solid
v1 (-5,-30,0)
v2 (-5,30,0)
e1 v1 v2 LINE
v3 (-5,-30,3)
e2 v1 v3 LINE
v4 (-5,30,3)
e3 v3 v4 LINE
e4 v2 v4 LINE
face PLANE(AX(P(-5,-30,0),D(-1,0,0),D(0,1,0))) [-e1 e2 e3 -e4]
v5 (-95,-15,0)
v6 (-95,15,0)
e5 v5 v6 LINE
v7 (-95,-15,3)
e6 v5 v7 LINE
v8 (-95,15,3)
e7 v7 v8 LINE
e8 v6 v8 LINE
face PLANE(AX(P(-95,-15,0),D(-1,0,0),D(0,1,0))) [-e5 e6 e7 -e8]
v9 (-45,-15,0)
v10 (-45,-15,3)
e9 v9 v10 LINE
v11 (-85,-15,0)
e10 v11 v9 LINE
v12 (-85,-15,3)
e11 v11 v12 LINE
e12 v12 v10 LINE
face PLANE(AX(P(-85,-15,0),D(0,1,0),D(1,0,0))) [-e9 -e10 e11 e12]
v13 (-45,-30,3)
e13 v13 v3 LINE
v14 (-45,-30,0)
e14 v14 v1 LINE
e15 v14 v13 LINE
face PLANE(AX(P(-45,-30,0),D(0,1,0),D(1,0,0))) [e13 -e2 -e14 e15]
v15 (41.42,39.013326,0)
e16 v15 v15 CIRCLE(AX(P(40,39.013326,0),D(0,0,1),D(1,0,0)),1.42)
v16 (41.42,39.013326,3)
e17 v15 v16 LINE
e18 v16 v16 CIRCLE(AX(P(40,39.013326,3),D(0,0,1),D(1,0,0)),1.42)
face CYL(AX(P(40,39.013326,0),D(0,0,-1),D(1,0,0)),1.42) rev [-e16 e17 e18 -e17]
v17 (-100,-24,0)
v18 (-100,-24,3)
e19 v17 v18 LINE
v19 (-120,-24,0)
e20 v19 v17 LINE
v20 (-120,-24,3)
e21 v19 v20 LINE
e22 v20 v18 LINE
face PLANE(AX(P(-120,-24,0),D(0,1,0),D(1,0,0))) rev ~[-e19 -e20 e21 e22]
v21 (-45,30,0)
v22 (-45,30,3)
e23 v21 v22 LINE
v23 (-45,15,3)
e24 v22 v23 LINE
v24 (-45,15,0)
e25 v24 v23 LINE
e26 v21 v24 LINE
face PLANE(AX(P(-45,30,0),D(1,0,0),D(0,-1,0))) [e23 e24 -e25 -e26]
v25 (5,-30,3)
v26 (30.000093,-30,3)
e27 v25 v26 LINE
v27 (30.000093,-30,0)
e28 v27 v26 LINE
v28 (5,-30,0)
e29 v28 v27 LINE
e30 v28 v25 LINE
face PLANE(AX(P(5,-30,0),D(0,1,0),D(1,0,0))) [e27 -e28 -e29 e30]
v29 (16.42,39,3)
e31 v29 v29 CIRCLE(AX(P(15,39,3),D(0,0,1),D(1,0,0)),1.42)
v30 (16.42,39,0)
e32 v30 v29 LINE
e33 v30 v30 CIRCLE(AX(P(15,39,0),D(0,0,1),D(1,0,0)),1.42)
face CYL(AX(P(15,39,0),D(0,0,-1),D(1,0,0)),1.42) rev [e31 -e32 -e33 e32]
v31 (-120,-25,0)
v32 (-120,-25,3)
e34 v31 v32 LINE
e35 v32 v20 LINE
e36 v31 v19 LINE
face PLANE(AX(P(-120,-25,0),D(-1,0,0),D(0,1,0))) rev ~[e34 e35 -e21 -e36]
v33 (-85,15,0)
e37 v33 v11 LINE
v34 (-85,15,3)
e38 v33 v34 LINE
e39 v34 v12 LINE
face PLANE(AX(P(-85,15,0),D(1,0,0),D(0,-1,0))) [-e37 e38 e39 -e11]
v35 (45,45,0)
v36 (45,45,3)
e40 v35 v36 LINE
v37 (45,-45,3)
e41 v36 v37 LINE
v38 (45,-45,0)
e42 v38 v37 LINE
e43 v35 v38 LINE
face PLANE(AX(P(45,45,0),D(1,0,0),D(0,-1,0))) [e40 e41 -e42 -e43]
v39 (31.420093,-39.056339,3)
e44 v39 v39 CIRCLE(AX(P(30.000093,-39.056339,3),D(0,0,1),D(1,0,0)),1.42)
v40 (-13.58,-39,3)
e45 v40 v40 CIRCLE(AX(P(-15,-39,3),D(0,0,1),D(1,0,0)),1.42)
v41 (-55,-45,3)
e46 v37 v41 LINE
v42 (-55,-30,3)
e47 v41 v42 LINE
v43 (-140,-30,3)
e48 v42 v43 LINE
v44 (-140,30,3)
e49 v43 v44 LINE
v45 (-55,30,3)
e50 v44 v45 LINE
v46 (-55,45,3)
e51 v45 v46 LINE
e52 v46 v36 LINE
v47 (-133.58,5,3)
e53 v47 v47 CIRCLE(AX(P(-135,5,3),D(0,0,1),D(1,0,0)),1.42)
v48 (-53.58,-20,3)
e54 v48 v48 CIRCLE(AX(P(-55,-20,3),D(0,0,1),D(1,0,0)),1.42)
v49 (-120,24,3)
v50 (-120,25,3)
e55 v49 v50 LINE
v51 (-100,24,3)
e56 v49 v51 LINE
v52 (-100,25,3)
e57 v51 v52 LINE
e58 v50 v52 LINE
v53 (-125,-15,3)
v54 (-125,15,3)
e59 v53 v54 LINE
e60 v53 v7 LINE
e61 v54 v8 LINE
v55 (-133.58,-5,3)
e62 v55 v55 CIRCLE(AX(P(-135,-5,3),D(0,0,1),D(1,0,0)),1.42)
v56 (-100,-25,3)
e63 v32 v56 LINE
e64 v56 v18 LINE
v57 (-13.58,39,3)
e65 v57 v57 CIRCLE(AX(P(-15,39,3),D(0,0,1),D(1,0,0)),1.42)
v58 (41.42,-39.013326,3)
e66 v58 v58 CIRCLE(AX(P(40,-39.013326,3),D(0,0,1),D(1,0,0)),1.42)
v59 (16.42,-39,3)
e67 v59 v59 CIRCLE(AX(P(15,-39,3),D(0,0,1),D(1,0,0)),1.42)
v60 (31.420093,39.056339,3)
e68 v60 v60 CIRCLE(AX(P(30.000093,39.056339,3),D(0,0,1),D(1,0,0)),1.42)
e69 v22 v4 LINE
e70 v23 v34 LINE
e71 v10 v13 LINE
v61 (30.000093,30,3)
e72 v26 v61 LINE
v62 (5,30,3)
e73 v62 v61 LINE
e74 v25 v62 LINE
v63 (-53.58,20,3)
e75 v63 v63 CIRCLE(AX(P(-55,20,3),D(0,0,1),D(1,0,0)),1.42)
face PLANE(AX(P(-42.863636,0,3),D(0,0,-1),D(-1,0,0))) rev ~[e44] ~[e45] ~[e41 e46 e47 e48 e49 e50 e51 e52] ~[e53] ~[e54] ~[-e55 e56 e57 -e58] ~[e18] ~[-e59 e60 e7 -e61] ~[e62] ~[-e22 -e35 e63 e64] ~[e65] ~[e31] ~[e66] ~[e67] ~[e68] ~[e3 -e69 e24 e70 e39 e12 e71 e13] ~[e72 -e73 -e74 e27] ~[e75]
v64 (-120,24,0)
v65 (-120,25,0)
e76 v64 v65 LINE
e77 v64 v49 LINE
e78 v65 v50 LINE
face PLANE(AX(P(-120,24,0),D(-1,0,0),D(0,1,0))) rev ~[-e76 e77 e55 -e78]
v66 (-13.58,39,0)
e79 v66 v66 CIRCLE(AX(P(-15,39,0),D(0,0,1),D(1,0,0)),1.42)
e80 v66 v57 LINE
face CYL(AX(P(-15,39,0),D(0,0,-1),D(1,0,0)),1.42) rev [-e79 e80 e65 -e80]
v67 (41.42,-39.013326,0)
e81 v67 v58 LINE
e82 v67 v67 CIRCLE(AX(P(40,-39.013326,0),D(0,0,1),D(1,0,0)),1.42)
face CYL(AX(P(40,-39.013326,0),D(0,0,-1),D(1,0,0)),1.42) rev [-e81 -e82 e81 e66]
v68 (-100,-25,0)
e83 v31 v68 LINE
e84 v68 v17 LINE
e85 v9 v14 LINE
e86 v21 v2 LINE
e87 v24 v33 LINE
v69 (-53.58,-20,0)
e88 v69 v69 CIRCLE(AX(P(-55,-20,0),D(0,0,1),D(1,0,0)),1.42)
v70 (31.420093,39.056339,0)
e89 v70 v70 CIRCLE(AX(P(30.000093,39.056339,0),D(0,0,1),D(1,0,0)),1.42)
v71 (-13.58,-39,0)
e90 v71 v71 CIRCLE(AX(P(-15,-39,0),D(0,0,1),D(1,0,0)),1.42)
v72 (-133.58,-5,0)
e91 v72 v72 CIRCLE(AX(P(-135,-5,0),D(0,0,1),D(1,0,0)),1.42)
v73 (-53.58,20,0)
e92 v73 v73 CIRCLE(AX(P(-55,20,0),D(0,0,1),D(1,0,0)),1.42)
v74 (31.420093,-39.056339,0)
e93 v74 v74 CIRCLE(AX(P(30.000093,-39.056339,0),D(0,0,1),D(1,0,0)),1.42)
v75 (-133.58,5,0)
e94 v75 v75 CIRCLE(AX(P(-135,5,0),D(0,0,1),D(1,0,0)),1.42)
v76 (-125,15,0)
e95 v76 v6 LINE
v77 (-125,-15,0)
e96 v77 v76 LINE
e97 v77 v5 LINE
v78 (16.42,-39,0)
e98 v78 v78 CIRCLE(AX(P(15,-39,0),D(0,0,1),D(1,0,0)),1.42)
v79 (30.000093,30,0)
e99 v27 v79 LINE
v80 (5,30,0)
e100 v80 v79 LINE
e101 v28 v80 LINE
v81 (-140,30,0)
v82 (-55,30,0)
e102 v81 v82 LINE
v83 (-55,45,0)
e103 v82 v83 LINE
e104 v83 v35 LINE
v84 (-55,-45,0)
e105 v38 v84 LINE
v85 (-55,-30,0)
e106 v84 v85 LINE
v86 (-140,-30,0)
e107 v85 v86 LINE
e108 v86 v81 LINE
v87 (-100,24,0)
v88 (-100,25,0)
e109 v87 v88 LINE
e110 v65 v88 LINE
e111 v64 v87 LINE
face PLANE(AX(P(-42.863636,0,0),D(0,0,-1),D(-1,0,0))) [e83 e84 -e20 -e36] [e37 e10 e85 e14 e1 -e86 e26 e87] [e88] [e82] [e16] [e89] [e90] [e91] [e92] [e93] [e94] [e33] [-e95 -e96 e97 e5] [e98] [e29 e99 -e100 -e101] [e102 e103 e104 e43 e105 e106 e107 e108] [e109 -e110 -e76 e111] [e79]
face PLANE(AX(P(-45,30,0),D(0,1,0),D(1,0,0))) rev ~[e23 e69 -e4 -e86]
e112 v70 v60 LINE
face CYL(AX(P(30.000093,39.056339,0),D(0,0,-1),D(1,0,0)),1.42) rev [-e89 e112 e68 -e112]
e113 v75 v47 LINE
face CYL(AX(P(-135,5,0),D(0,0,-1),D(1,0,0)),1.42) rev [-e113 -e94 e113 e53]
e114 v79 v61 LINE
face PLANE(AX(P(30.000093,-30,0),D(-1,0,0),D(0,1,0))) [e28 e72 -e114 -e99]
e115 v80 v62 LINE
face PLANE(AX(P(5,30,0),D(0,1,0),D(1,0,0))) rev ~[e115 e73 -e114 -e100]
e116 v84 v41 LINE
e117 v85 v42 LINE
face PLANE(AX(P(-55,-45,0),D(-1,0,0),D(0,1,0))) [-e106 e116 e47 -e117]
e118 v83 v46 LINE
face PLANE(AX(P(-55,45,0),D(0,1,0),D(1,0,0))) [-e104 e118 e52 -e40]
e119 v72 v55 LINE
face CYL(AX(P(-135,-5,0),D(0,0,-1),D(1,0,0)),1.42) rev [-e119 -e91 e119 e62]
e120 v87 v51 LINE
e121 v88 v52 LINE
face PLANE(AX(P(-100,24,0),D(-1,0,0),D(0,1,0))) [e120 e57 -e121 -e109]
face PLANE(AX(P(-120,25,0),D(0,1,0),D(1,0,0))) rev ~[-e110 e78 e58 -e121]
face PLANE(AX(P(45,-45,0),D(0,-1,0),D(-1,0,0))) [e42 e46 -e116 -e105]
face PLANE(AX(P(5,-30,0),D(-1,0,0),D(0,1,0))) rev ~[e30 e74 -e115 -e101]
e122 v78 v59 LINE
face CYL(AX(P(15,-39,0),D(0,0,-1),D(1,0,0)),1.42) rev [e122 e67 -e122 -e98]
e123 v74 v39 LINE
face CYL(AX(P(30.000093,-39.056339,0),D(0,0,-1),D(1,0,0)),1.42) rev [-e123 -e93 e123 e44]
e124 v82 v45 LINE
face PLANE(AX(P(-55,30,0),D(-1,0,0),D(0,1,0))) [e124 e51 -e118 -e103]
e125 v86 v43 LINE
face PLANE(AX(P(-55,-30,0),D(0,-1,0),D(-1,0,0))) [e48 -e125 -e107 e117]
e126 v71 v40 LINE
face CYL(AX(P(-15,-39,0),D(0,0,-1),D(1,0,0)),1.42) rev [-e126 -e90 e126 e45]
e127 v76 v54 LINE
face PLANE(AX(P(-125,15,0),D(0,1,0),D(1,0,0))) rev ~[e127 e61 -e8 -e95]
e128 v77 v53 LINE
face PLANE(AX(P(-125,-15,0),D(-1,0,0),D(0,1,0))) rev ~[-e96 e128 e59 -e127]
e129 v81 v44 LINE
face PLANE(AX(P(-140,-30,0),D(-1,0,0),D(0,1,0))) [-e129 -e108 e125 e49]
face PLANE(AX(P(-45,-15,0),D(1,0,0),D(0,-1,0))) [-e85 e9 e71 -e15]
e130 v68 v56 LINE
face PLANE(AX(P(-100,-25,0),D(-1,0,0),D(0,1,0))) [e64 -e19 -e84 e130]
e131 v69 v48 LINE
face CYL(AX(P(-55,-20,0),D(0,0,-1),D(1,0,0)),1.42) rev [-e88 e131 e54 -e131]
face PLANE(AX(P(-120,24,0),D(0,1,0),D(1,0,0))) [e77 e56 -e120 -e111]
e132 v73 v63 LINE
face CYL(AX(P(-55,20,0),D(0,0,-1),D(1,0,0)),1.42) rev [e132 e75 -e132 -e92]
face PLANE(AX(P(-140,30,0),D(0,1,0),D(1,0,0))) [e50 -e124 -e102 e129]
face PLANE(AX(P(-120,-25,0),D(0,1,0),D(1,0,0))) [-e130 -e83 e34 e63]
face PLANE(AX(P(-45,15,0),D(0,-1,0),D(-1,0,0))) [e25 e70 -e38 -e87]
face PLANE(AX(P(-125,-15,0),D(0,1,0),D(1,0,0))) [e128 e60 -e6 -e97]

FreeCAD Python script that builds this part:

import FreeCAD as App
import Part
import Sketcher
Q = App.Units.Quantity


def add_polygon(sketch, points):
    """Adds a closed chain of lines whose ends are joined by coincident constraints."""
    first, n = sketch.GeometryCount, len(points)
    for a, b in zip(points, points[1:] + points[:1]):
        sketch.addGeometry(Part.LineSegment(App.Vector(*a, 0), App.Vector(*b, 0)), False)
    for i in range(n):
        sketch.addConstraint(Sketcher.Constraint("Coincident", first + i, 2, first + (i + 1) % n, 1))

doc = App.newDocument("Part")
body = doc.addObject("PartDesign::Body", "Body")

sketch1 = body.newObject("Sketcher::SketchObject", "Sketch")
sketch1.AttachmentSupport = (doc.getObject("XY_Plane"), [""])
sketch1.MapMode = "FlatFace"
add_polygon(sketch1, [(45, 45), (-55, 45), (-55, 30), (-140, 30), (-140, -30), (-55, -30), (-55, -45), (45, -45)])
sketch1.addGeometry(Part.Circle(App.Vector(40, -39, 0), App.Vector(0, 0, 1), 1.4), False)
sketch1.addGeometry(Part.Circle(App.Vector(30, -39.1, 0), App.Vector(0, 0, 1), 1.4), False)
sketch1.addGeometry(Part.Circle(App.Vector(15, -39, 0), App.Vector(0, 0, 1), 1.4), False)
sketch1.addGeometry(Part.Circle(App.Vector(-15, -39, 0), App.Vector(0, 0, 1), 1.4), False)
add_polygon(sketch1, [(5, -30), (5, 30), (30, 30), (30, -30)])
add_polygon(sketch1, [(-5, 30), (-5, -30), (-45, -30), (-45, -15), (-85, -15), (-85, 15), (-45, 15), (-45, 30)])
add_polygon(sketch1, [(-120, -25), (-120, -24), (-100, -24), (-100, -25)])
sketch1.addGeometry(Part.Circle(App.Vector(-55, -20, 0), App.Vector(0, 0, 1), 1.4), False)
add_polygon(sketch1, [(-125, -15), (-125, 15), (-95, 15), (-95, -15)])
sketch1.addGeometry(Part.Circle(App.Vector(-135, -5, 0), App.Vector(0, 0, 1), 1.4), False)
sketch1.addGeometry(Part.Circle(App.Vector(40, 39, 0), App.Vector(0, 0, 1), 1.4), False)
sketch1.addGeometry(Part.Circle(App.Vector(30, 39.1, 0), App.Vector(0, 0, 1), 1.4), False)
sketch1.addGeometry(Part.Circle(App.Vector(15, 39, 0), App.Vector(0, 0, 1), 1.4), False)
sketch1.addGeometry(Part.Circle(App.Vector(-15, 39, 0), App.Vector(0, 0, 1), 1.4), False)
sketch1.addGeometry(Part.Circle(App.Vector(-55, 20, 0), App.Vector(0, 0, 1), 1.4), False)
sketch1.addGeometry(Part.Circle(App.Vector(-135, 5, 0), App.Vector(0, 0, 1), 1.4), False)
add_polygon(sketch1, [(-120, 24), (-120, 25), (-100, 25), (-100, 24)])
sketch1.addConstraint([
    Sketcher.Constraint("Horizontal", 0),
    Sketcher.Constraint("Vertical", 1),
    Sketcher.Constraint("Horizontal", 2),
    Sketcher.Constraint("Vertical", 3),
    Sketcher.Constraint("Horizontal", 4),
    Sketcher.Constraint("Vertical", 5),
    Sketcher.Constraint("Horizontal", 6),
    Sketcher.Constraint("Vertical", 7),
    Sketcher.Constraint("Vertical", 12),
    Sketcher.Constraint("Horizontal", 13),
    Sketcher.Constraint("Vertical", 14),
    Sketcher.Constraint("Horizontal", 15),
    Sketcher.Constraint("Vertical", 16),
    Sketcher.Constraint("Horizontal", 17),
    Sketcher.Constraint("Vertical", 18),
    Sketcher.Constraint("Horizontal", 19),
    Sketcher.Constraint("Vertical", 20),
    Sketcher.Constraint("Horizontal", 21),
    Sketcher.Constraint("Vertical", 22),
    Sketcher.Constraint("Horizontal", 23),
    Sketcher.Constraint("Vertical", 24),
    Sketcher.Constraint("Horizontal", 25),
    Sketcher.Constraint("Vertical", 26),
    Sketcher.Constraint("Horizontal", 27),
    Sketcher.Constraint("Vertical", 29),
    Sketcher.Constraint("Horizontal", 30),
    Sketcher.Constraint("Vertical", 31),
    Sketcher.Constraint("Horizontal", 32),
    Sketcher.Constraint("Vertical", 40),
    Sketcher.Constraint("Horizontal", 41),
    Sketcher.Constraint("Vertical", 42),
    Sketcher.Constraint("Horizontal", 43),
    Sketcher.Constraint("Equal", 8, 9),
    Sketcher.Constraint("Equal", 9, 10),
    Sketcher.Constraint("Equal", 10, 11),
    Sketcher.Constraint("Equal", 11, 28),
    Sketcher.Constraint("Equal", 28, 33),
    Sketcher.Constraint("Equal", 33, 34),
    Sketcher.Constraint("Equal", 34, 35),
    Sketcher.Constraint("Equal", 35, 36),
    Sketcher.Constraint("Equal", 36, 37),
    Sketcher.Constraint("Equal", 37, 38),
    Sketcher.Constraint("Equal", 38, 39),
    Sketcher.Constraint("Symmetric", 11, 3, 36, 3, -1, 1),
    Sketcher.Constraint("Symmetric", 10, 3, 37, 3, -1, 1),
    Sketcher.Constraint("Symmetric", 12, 2, 16, 2, -1, 1),
    Sketcher.Constraint("Symmetric", 10, 3, 11, 3, -2),
    Sketcher.Constraint("Symmetric", 8, 3, 34, 3, -1),
    Sketcher.Constraint("Symmetric", 9, 3, 35, 3, -1),
    Sketcher.Constraint("Symmetric", 28, 3, 38, 3, -1),
    Sketcher.Constraint("Symmetric", 33, 3, 39, 3, -1),
    Sketcher.Constraint("Symmetric", 1, 2, 4, 2, -1),
    Sketcher.Constraint("Symmetric", 18, 2, 21, 2, -1),
    Sketcher.Constraint("Symmetric", 27, 2, 40, 2, -1),
    Sketcher.Constraint("Symmetric", 25, 2, 42, 2, -1),
    Sketcher.Constraint("Horizontal", 2, 2, 12, 2),
    Sketcher.Constraint("Horizontal", 4, 2, 14, 2),
    Sketcher.Constraint("Horizontal", 13, 2, 22, 2),
    Sketcher.Constraint("Horizontal", 21, 2, 29, 2),
    Sketcher.Constraint("Horizontal", 19, 2, 31, 2),
    Sketcher.Constraint("Vertical", 38, 3, 0, 2),
    Sketcher.Constraint("Vertical", 35, 3, 13, 2),
    Sketcher.Constraint("Equal", 17, 19),
    Sketcher.Constraint("Equal", 1, 5),
    Sketcher.Constraint("Equal", 5, 18),
    Sketcher.Constraint("Equal", 32, 20),
    Sketcher.Constraint("Diameter", 8, Q("2.84 mm")),
    Sketcher.Constraint("DistanceX", 0, 2, 0, 1, Q("100 mm")),
    Sketcher.Constraint("DistanceX", 2, 2, 2, 1, Q("85 mm")),
    Sketcher.Constraint("DistanceX", 17, 2, 17, 1, Q("40 mm")),
    Sketcher.Constraint("DistanceX", 25, 1, 25, 2, Q("20 mm")),
    Sketcher.Constraint("DistanceX", 30, 1, 30, 2, Q("30 mm")),
    Sketcher.Constraint("DistanceY", 1, 2, 1, 1, Q("15 mm")),
    Sketcher.Constraint("DistanceY", 24, 1, 24, 2, Q("1 mm")),
    Sketcher.Constraint("DistanceX", -1, 1, 8, 3, Q("40 mm")),
    Sketcher.Constraint("DistanceX", -1, 1, 10, 3, Q("15 mm")),
    Sketcher.Constraint("DistanceY", 10, 3, -1, 1, Q("39 mm")),
    Sketcher.Constraint("DistanceX", 28, 3, -1, 1, Q("55 mm")),
    Sketcher.Constraint("DistanceY", 28, 3, -1, 1, Q("20 mm")),
    Sketcher.Constraint("DistanceX", 33, 3, -1, 1, Q("135 mm")),
    Sketcher.Constraint("DistanceY", 33, 3, -1, 1, Q("5 mm")),
    Sketcher.Constraint("DistanceX", -1, 1, 12, 2, Q("5 mm")),
    Sketcher.Constraint("DistanceX", 24, 2, -1, 1, Q("120 mm")),
    Sketcher.Constraint("DistanceY", 24, 2, -1, 1, Q("24 mm")),
    Sketcher.Constraint("DistanceX", 29, 2, -1, 1, Q("125 mm")),
    Sketcher.Constraint("DistanceX", 13, 1, 13, 2, Q("25.000093 mm")),
    Sketcher.Constraint("DistanceY", 9, 3, -1, 1, Q("39.056339 mm")),
    Sketcher.Constraint("DistanceY", 8, 3, -1, 1, Q("39.013326 mm")),
])
pad1 = body.newObject("PartDesign::Pad", "Pad")
pad1.Profile = sketch1
pad1.Length = 3

doc.recompute()
